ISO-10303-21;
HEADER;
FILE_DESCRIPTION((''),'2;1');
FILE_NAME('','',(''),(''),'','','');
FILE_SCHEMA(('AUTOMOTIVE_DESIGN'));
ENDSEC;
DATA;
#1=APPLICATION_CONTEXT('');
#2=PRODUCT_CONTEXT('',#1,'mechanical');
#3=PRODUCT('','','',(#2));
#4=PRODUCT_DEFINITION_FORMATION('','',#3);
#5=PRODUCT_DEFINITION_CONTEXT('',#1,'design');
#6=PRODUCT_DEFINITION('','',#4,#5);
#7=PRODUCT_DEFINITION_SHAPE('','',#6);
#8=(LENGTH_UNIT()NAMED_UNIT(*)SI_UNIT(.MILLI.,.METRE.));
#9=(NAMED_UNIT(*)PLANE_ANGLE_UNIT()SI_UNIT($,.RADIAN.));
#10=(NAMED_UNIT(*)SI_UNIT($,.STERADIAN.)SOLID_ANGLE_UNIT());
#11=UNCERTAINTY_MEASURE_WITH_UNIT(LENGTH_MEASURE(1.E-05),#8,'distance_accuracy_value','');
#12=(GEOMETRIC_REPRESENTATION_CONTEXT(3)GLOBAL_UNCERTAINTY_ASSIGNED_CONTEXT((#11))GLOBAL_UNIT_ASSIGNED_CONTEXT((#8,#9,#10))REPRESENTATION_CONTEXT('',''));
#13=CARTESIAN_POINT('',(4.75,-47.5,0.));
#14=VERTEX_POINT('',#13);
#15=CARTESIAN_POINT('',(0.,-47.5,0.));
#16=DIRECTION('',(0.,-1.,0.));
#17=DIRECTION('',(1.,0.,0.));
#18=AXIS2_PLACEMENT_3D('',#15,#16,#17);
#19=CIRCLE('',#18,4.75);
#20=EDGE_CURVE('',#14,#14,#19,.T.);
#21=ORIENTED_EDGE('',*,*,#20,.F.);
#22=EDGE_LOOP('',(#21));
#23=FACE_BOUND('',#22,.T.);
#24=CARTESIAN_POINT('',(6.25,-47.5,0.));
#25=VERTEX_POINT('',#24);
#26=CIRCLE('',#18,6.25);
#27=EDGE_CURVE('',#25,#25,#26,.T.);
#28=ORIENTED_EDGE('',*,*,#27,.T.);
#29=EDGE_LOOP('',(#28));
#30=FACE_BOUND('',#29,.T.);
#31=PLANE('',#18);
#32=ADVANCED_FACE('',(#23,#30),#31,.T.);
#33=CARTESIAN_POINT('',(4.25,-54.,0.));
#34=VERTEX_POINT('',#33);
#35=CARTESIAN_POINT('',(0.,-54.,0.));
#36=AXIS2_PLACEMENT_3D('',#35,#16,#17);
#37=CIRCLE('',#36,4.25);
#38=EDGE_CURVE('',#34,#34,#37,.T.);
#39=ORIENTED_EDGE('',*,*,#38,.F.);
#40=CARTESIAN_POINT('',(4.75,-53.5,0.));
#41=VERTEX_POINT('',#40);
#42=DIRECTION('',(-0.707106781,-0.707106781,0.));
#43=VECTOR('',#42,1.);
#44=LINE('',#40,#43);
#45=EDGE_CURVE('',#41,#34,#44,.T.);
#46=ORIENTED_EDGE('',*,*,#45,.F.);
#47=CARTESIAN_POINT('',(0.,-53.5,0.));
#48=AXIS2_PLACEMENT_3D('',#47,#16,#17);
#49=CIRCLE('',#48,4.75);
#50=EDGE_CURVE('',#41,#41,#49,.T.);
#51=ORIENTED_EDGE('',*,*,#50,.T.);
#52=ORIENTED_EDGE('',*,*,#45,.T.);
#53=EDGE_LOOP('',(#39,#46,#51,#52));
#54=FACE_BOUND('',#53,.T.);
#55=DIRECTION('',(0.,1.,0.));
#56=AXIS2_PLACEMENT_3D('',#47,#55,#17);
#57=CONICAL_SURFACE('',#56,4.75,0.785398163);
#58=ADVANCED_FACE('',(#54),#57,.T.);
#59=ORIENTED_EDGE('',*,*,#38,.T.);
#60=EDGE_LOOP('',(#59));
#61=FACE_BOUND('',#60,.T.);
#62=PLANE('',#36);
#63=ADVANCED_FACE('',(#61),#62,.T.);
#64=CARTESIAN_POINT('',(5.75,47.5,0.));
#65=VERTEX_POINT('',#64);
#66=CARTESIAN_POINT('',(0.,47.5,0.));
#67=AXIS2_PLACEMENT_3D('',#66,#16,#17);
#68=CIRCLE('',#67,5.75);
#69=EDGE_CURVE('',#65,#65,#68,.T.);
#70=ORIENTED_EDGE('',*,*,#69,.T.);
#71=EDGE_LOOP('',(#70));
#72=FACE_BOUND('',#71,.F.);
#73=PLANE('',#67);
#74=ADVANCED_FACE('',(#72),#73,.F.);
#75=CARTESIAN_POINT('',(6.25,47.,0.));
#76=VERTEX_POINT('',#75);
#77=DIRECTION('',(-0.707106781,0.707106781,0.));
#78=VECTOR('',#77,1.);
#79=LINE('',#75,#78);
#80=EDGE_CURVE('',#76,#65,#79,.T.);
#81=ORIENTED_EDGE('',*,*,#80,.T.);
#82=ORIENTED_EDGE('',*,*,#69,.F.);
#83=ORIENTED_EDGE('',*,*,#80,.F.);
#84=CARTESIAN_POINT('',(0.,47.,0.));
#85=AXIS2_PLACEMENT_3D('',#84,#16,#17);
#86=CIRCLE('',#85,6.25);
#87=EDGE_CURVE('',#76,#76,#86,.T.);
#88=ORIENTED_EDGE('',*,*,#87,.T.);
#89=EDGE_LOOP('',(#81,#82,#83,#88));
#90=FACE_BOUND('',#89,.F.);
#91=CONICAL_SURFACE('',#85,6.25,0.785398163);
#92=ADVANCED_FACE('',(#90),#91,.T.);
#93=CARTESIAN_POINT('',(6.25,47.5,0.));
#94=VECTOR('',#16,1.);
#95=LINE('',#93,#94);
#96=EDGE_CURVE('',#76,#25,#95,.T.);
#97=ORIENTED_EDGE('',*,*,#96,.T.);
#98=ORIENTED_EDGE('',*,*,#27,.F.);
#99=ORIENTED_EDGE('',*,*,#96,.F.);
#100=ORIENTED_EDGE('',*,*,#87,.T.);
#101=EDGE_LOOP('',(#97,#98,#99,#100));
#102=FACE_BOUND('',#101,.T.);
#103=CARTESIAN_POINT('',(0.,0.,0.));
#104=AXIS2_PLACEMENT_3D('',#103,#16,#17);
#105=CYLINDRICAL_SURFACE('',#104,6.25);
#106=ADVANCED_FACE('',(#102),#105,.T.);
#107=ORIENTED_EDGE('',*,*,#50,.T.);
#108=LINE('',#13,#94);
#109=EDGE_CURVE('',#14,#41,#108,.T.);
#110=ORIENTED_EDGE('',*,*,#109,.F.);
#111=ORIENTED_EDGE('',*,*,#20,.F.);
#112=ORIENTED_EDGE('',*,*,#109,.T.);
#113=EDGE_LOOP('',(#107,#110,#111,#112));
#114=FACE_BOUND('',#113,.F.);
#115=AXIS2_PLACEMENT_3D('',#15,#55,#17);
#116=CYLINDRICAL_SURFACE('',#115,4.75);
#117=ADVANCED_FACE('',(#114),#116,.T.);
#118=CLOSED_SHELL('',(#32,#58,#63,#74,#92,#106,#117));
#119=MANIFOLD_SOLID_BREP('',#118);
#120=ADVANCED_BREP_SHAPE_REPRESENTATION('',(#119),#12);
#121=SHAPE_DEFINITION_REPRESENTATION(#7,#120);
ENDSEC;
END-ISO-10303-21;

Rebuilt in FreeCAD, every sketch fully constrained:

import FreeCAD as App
import Part
import Sketcher


def edges_at(feature, points):
    """Names of the edges that pass closest to the given points."""
    edges = feature.Shape.Edges
    near = lambda p: min(range(len(edges)), key=lambda i: edges[i].distToShape(Part.Vertex(*p))[0])
    return sorted({f"Edge{near(p) + 1}" for p in points})

doc = App.newDocument("Part")
body = doc.addObject("PartDesign::Body", "Body")

sketch1 = doc.addObject("Sketcher::SketchObject", "Sketch")
body.addObject(sketch1)
sketch1.AttachmentSupport = (doc.XZ_Plane, [""])
sketch1.MapMode = "FlatFace"
sketch1.addGeometry(Part.Circle(App.Vector(0, 0, 0), App.Vector(0, 0, 1), 6), False)
sketch1.addConstraint(Sketcher.Constraint("Coincident", 0, 3, -1, 1))
sketch1.addConstraint(Sketcher.Constraint("Diameter", 0, 12.5))
pad1 = doc.addObject("PartDesign::Pad", "Pad")
body.addObject(pad1)
pad1.Profile = sketch1
pad1.Length = 95
pad1.Midplane = True

sketch2 = doc.addObject("Sketcher::SketchObject", "Sketch001")
body.addObject(sketch2)
sketch2.AttachmentSupport = (doc.XZ_Plane, [""])
sketch2.MapMode = "FlatFace"
sketch2.AttachmentOffset = App.Placement(App.Vector(0, 0, 47.5), App.Rotation())
sketch2.addGeometry(Part.Circle(App.Vector(0, 0, 0), App.Vector(0, 0, 1), 4.8), False)
sketch2.addConstraint(Sketcher.Constraint("Coincident", 0, 3, -1, 1))
sketch2.addConstraint(Sketcher.Constraint("Diameter", 0, 9.5))
pad2 = doc.addObject("PartDesign::Pad", "Pad001")
body.addObject(pad2)
pad2.Profile = sketch2
pad2.Length = 6.5
doc.recompute()

chamfer = doc.addObject("PartDesign::Chamfer", "Chamfer")
body.addObject(chamfer)
chamfer.Base = (pad2, edges_at(pad2, [(-4.75, -54, 0), (-6.25, 47.5, 0)]))
chamfer.Size = 0.5

doc.recompute()
